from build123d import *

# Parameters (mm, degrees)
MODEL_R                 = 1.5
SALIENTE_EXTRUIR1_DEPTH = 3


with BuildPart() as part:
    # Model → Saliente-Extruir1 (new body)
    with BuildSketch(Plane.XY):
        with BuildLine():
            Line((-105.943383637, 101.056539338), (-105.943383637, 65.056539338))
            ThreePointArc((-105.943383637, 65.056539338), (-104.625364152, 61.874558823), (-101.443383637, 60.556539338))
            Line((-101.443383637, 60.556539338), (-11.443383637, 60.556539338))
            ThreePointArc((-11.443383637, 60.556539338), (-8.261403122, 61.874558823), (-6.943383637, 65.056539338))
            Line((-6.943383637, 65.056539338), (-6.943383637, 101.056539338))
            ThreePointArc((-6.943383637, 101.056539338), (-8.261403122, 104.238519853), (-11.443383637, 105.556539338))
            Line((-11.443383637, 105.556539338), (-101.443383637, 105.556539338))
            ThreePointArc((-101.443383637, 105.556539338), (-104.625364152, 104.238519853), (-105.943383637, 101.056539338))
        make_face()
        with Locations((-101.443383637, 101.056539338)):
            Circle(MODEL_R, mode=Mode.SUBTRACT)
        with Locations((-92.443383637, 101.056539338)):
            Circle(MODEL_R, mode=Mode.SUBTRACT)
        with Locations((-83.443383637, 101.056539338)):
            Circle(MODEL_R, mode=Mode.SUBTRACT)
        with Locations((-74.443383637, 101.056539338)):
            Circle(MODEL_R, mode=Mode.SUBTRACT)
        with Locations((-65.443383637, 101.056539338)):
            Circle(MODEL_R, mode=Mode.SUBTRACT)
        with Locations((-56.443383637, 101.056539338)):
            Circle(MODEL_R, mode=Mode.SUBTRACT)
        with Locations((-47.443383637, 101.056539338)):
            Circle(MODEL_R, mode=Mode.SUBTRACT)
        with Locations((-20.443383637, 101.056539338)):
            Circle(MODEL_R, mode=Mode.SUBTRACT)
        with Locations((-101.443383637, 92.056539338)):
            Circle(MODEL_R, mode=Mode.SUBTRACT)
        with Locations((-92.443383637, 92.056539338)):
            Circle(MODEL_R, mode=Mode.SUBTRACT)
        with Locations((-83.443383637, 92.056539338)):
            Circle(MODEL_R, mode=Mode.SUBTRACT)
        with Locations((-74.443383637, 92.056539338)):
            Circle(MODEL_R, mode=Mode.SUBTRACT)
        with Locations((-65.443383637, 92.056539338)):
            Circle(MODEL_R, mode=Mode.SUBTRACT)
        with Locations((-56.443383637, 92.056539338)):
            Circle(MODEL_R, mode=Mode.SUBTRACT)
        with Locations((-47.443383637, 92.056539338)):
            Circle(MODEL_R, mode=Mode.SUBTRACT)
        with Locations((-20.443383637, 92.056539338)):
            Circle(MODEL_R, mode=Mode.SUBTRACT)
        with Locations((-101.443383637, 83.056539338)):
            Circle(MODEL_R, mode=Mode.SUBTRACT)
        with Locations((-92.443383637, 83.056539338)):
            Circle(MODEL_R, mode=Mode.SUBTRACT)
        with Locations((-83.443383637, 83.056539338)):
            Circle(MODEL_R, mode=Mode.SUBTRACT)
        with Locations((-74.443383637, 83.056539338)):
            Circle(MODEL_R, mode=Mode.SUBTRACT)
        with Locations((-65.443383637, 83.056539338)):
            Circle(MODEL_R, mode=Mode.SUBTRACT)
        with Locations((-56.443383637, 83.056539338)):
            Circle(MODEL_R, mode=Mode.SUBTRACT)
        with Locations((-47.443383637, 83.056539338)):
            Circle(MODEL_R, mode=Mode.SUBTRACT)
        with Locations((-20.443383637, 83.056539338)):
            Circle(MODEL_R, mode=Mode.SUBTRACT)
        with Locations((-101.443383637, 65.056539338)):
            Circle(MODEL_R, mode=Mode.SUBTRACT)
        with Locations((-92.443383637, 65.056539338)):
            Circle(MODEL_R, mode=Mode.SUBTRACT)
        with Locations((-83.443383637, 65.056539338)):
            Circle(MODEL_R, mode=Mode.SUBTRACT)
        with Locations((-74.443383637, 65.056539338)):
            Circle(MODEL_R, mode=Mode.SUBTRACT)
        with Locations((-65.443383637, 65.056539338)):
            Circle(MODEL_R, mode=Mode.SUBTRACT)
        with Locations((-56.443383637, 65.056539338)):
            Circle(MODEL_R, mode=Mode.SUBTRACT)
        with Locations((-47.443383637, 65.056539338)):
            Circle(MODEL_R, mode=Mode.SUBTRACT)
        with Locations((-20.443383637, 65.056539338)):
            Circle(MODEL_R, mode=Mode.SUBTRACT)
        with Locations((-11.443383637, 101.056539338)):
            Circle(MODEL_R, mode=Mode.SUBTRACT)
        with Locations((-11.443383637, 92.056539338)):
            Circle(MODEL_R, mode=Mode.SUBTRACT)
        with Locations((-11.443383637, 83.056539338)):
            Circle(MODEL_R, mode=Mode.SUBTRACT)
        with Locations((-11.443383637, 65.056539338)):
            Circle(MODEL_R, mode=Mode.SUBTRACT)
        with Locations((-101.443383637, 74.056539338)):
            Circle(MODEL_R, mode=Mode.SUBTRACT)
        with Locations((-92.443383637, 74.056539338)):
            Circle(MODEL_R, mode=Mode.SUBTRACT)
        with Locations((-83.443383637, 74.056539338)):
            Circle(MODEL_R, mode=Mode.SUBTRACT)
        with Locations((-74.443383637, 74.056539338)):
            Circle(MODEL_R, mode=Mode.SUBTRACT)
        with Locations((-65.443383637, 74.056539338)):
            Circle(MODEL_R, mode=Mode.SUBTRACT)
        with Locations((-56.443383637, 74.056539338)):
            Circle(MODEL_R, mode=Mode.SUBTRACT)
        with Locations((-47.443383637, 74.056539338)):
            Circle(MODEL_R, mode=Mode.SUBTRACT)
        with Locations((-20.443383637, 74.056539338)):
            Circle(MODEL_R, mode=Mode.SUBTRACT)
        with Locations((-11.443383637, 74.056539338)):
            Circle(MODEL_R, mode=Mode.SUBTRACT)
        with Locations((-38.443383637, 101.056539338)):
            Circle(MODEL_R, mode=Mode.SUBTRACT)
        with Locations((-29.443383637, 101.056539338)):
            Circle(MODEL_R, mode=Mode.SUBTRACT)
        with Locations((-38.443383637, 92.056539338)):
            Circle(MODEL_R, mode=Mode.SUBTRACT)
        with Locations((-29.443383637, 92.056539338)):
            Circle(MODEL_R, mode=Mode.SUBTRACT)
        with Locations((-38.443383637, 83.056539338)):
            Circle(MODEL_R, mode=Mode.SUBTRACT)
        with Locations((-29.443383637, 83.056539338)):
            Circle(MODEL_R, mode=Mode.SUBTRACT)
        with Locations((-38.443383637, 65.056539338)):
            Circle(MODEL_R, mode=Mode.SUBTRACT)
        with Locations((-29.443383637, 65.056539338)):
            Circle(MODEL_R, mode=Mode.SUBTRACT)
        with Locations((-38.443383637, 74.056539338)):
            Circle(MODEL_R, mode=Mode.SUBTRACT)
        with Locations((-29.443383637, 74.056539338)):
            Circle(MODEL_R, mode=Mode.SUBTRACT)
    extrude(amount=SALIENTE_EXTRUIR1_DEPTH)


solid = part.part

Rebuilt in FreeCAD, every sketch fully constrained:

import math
import FreeCAD as App
import Part
import Sketcher

V = App.Vector

doc = App.newDocument("Part")
body = doc.addObject("PartDesign::Body", "Body")

# Sketch on XY plane
sketch1 = doc.addObject("Sketcher::SketchObject", "Sketch")
body.addObject(sketch1)
sketch1.AttachmentSupport = (doc.XY_Plane, [""])
sketch1.MapMode = "FlatFace"
sketch1.addGeometry(Part.LineSegment(V(-105.9, 101.1, 0), V(-105.9, 65.1, 0)), False)
sketch1.addGeometry(Part.ArcOfCircle(Part.Circle(V(-101.4, 65.1, 0), V(0, 0, 1), 4.5), math.radians(-180), math.radians(-90)), False)
sketch1.addGeometry(Part.LineSegment(V(-101.4, 60.6, 0), V(-11.4, 60.6, 0)), False)
sketch1.addGeometry(Part.ArcOfCircle(Part.Circle(V(-11.4, 65.1, 0), V(0, 0, 1), 4.5), math.radians(-90), math.radians(0)), False)
sketch1.addGeometry(Part.LineSegment(V(-6.9, 65.1, 0), V(-6.9, 101.1, 0)), False)
sketch1.addGeometry(Part.ArcOfCircle(Part.Circle(V(-11.4, 101.1, 0), V(0, 0, 1), 4.5), math.radians(0), math.radians(90)), False)
sketch1.addGeometry(Part.LineSegment(V(-11.4, 105.6, 0), V(-101.4, 105.6, 0)), False)
sketch1.addGeometry(Part.ArcOfCircle(Part.Circle(V(-101.4, 101.1, 0), V(0, 0, 1), 4.5), math.radians(90), math.radians(180)), False)
sketch1.addGeometry(Part.Circle(V(-101.4, 65.1, 0), V(0, 0, 1), 1.5), False)
sketch1.addGeometry(Part.Circle(V(-92.4, 65.1, 0), V(0, 0, 1), 1.5), False)
sketch1.addGeometry(Part.Circle(V(-83.4, 65.1, 0), V(0, 0, 1), 1.5), False)
sketch1.addGeometry(Part.Circle(V(-74.4, 65.1, 0), V(0, 0, 1), 1.5), False)
sketch1.addGeometry(Part.Circle(V(-65.4, 65.1, 0), V(0, 0, 1), 1.5), False)
sketch1.addGeometry(Part.Circle(V(-101.4, 74.1, 0), V(0, 0, 1), 1.5), False)
sketch1.addGeometry(Part.Circle(V(-92.4, 74.1, 0), V(0, 0, 1), 1.5), False)
sketch1.addGeometry(Part.Circle(V(-83.4, 74.1, 0), V(0, 0, 1), 1.5), False)
sketch1.addGeometry(Part.Circle(V(-74.4, 74.1, 0), V(0, 0, 1), 1.5), False)
sketch1.addGeometry(Part.Circle(V(-65.4, 74.1, 0), V(0, 0, 1), 1.5), False)
sketch1.addGeometry(Part.Circle(V(-56.4, 65.1, 0), V(0, 0, 1), 1.5), False)
sketch1.addGeometry(Part.Circle(V(-47.4, 65.1, 0), V(0, 0, 1), 1.5), False)
sketch1.addGeometry(Part.Circle(V(-38.4, 65.1, 0), V(0, 0, 1), 1.5), False)
sketch1.addGeometry(Part.Circle(V(-29.4, 65.1, 0), V(0, 0, 1), 1.5), False)
sketch1.addGeometry(Part.Circle(V(-20.4, 65.1, 0), V(0, 0, 1), 1.5), False)
sketch1.addGeometry(Part.Circle(V(-11.4, 65.1, 0), V(0, 0, 1), 1.5), False)
sketch1.addGeometry(Part.Circle(V(-56.4, 74.1, 0), V(0, 0, 1), 1.5), False)
sketch1.addGeometry(Part.Circle(V(-47.4, 74.1, 0), V(0, 0, 1), 1.5), False)
sketch1.addGeometry(Part.Circle(V(-38.4, 74.1, 0), V(0, 0, 1), 1.5), False)
sketch1.addGeometry(Part.Circle(V(-29.4, 74.1, 0), V(0, 0, 1), 1.5), False)
sketch1.addGeometry(Part.Circle(V(-20.4, 74.1, 0), V(0, 0, 1), 1.5), False)
sketch1.addGeometry(Part.Circle(V(-11.4, 74.1, 0), V(0, 0, 1), 1.5), False)
sketch1.addGeometry(Part.Circle(V(-101.4, 83.1, 0), V(0, 0, 1), 1.5), False)
sketch1.addGeometry(Part.Circle(V(-92.4, 83.1, 0), V(0, 0, 1), 1.5), False)
sketch1.addGeometry(Part.Circle(V(-83.4, 83.1, 0), V(0, 0, 1), 1.5), False)
sketch1.addGeometry(Part.Circle(V(-101.4, 92.1, 0), V(0, 0, 1), 1.5), False)
sketch1.addGeometry(Part.Circle(V(-92.4, 92.1, 0), V(0, 0, 1), 1.5), False)
sketch1.addGeometry(Part.Circle(V(-83.4, 92.1, 0), V(0, 0, 1), 1.5), False)
sketch1.addGeometry(Part.Circle(V(-74.4, 83.1, 0), V(0, 0, 1), 1.5), False)
sketch1.addGeometry(Part.Circle(V(-65.4, 83.1, 0), V(0, 0, 1), 1.5), False)
sketch1.addGeometry(Part.Circle(V(-74.4, 92.1, 0), V(0, 0, 1), 1.5), False)
sketch1.addGeometry(Part.Circle(V(-65.4, 92.1, 0), V(0, 0, 1), 1.5), False)
sketch1.addGeometry(Part.Circle(V(-101.4, 101.1, 0), V(0, 0, 1), 1.5), False)
sketch1.addGeometry(Part.Circle(V(-92.4, 101.1, 0), V(0, 0, 1), 1.5), False)
sketch1.addGeometry(Part.Circle(V(-83.4, 101.1, 0), V(0, 0, 1), 1.5), False)
sketch1.addGeometry(Part.Circle(V(-74.4, 101.1, 0), V(0, 0, 1), 1.5), False)
sketch1.addGeometry(Part.Circle(V(-65.4, 101.1, 0), V(0, 0, 1), 1.5), False)
sketch1.addGeometry(Part.Circle(V(-56.4, 83.1, 0), V(0, 0, 1), 1.5), False)
sketch1.addGeometry(Part.Circle(V(-47.4, 83.1, 0), V(0, 0, 1), 1.5), False)
sketch1.addGeometry(Part.Circle(V(-38.4, 83.1, 0), V(0, 0, 1), 1.5), False)
sketch1.addGeometry(Part.Circle(V(-56.4, 92.1, 0), V(0, 0, 1), 1.5), False)
sketch1.addGeometry(Part.Circle(V(-47.4, 92.1, 0), V(0, 0, 1), 1.5), False)
sketch1.addGeometry(Part.Circle(V(-38.4, 92.1, 0), V(0, 0, 1), 1.5), False)
sketch1.addGeometry(Part.Circle(V(-29.4, 83.1, 0), V(0, 0, 1), 1.5), False)
sketch1.addGeometry(Part.Circle(V(-20.4, 83.1, 0), V(0, 0, 1), 1.5), False)
sketch1.addGeometry(Part.Circle(V(-11.4, 83.1, 0), V(0, 0, 1), 1.5), False)
sketch1.addGeometry(Part.Circle(V(-29.4, 92.1, 0), V(0, 0, 1), 1.5), False)
sketch1.addGeometry(Part.Circle(V(-20.4, 92.1, 0), V(0, 0, 1), 1.5), False)
sketch1.addGeometry(Part.Circle(V(-11.4, 92.1, 0), V(0, 0, 1), 1.5), False)
sketch1.addGeometry(Part.Circle(V(-56.4, 101.1, 0), V(0, 0, 1), 1.5), False)
sketch1.addGeometry(Part.Circle(V(-47.4, 101.1, 0), V(0, 0, 1), 1.5), False)
sketch1.addGeometry(Part.Circle(V(-38.4, 101.1, 0), V(0, 0, 1), 1.5), False)
sketch1.addGeometry(Part.Circle(V(-29.4, 101.1, 0), V(0, 0, 1), 1.5), False)
sketch1.addGeometry(Part.Circle(V(-20.4, 101.1, 0), V(0, 0, 1), 1.5), False)
sketch1.addGeometry(Part.Circle(V(-11.4, 101.1, 0), V(0, 0, 1), 1.5), False)
sketch1.addConstraint(Sketcher.Constraint("Tangent", 0, 2, 1, 1))
sketch1.addConstraint(Sketcher.Constraint("Tangent", 1, 2, 2, 1))
sketch1.addConstraint(Sketcher.Constraint("Tangent", 2, 2, 3, 1))
sketch1.addConstraint(Sketcher.Constraint("Tangent", 3, 2, 4, 1))
sketch1.addConstraint(Sketcher.Constraint("Tangent", 4, 2, 5, 1))
sketch1.addConstraint(Sketcher.Constraint("Tangent", 5, 2, 6, 1))
sketch1.addConstraint(Sketcher.Constraint("Tangent", 6, 2, 7, 1))
sketch1.addConstraint(Sketcher.Constraint("Tangent", 7, 2, 0, 1))
sketch1.addConstraint(Sketcher.Constraint("Vertical", 0))
sketch1.addConstraint(Sketcher.Constraint("Horizontal", 2))
sketch1.addConstraint(Sketcher.Constraint("Vertical", 4))
sketch1.addConstraint(Sketcher.Constraint("Horizontal", 6))
sketch1.addConstraint(Sketcher.Constraint("Coincident", 8, 3, 1, 3))
sketch1.addConstraint(Sketcher.Constraint("Coincident", 23, 3, 3, 3))
sketch1.addConstraint(Sketcher.Constraint("Coincident", 40, 3, 7, 3))
sketch1.addConstraint(Sketcher.Constraint("Coincident", 62, 3, 5, 3))
sketch1.addConstraint(Sketcher.Constraint("Equal", 1, 3))
sketch1.addConstraint(Sketcher.Constraint("Equal", 3, 5))
sketch1.addConstraint(Sketcher.Constraint("Equal", 5, 7))
sketch1.addConstraint(Sketcher.Constraint("Equal", 8, 9))
sketch1.addConstraint(Sketcher.Constraint("Equal", 9, 10))
sketch1.addConstraint(Sketcher.Constraint("Equal", 10, 11))
sketch1.addConstraint(Sketcher.Constraint("Equal", 11, 12))
sketch1.addConstraint(Sketcher.Constraint("Equal", 12, 13))
sketch1.addConstraint(Sketcher.Constraint("Equal", 13, 14))
sketch1.addConstraint(Sketcher.Constraint("Equal", 14, 15))
sketch1.addConstraint(Sketcher.Constraint("Equal", 15, 16))
sketch1.addConstraint(Sketcher.Constraint("Equal", 16, 17))
sketch1.addConstraint(Sketcher.Constraint("Equal", 17, 18))
sketch1.addConstraint(Sketcher.Constraint("Equal", 18, 19))
sketch1.addConstraint(Sketcher.Constraint("Equal", 19, 20))
sketch1.addConstraint(Sketcher.Constraint("Equal", 20, 21))
sketch1.addConstraint(Sketcher.Constraint("Equal", 21, 22))
sketch1.addConstraint(Sketcher.Constraint("Equal", 22, 23))
sketch1.addConstraint(Sketcher.Constraint("Equal", 23, 24))
sketch1.addConstraint(Sketcher.Constraint("Equal", 24, 25))
sketch1.addConstraint(Sketcher.Constraint("Equal", 25, 26))
sketch1.addConstraint(Sketcher.Constraint("Equal", 26, 27))
sketch1.addConstraint(Sketcher.Constraint("Equal", 27, 28))
sketch1.addConstraint(Sketcher.Constraint("Equal", 28, 29))
sketch1.addConstraint(Sketcher.Constraint("Equal", 29, 30))
sketch1.addConstraint(Sketcher.Constraint("Equal", 30, 31))
sketch1.addConstraint(Sketcher.Constraint("Equal", 31, 32))
sketch1.addConstraint(Sketcher.Constraint("Equal", 32, 33))
sketch1.addConstraint(Sketcher.Constraint("Equal", 33, 34))
sketch1.addConstraint(Sketcher.Constraint("Equal", 34, 35))
sketch1.addConstraint(Sketcher.Constraint("Equal", 35, 36))
sketch1.addConstraint(Sketcher.Constraint("Equal", 36, 37))
sketch1.addConstraint(Sketcher.Constraint("Equal", 37, 38))
sketch1.addConstraint(Sketcher.Constraint("Equal", 38, 39))
sketch1.addConstraint(Sketcher.Constraint("Equal", 39, 40))
sketch1.addConstraint(Sketcher.Constraint("Equal", 40, 41))
sketch1.addConstraint(Sketcher.Constraint("Equal", 41, 42))
sketch1.addConstraint(Sketcher.Constraint("Equal", 42, 43))
sketch1.addConstraint(Sketcher.Constraint("Equal", 43, 44))
sketch1.addConstraint(Sketcher.Constraint("Equal", 44, 45))
sketch1.addConstraint(Sketcher.Constraint("Equal", 45, 46))
sketch1.addConstraint(Sketcher.Constraint("Equal", 46, 47))
sketch1.addConstraint(Sketcher.Constraint("Equal", 47, 48))
sketch1.addConstraint(Sketcher.Constraint("Equal", 48, 49))
sketch1.addConstraint(Sketcher.Constraint("Equal", 49, 50))
sketch1.addConstraint(Sketcher.Constraint("Equal", 50, 51))
sketch1.addConstraint(Sketcher.Constraint("Equal", 51, 52))
sketch1.addConstraint(Sketcher.Constraint("Equal", 52, 53))
sketch1.addConstraint(Sketcher.Constraint("Equal", 53, 54))
sketch1.addConstraint(Sketcher.Constraint("Equal", 54, 55))
sketch1.addConstraint(Sketcher.Constraint("Equal", 55, 56))
sketch1.addConstraint(Sketcher.Constraint("Equal", 56, 57))
sketch1.addConstraint(Sketcher.Constraint("Equal", 57, 58))
sketch1.addConstraint(Sketcher.Constraint("Equal", 58, 59))
sketch1.addConstraint(Sketcher.Constraint("Equal", 59, 60))
sketch1.addConstraint(Sketcher.Constraint("Equal", 60, 61))
sketch1.addConstraint(Sketcher.Constraint("Equal", 61, 62))
sketch1.addConstraint(Sketcher.Constraint("Horizontal", 8, 3, 9, 3))
sketch1.addConstraint(Sketcher.Constraint("Horizontal", 9, 3, 10, 3))
sketch1.addConstraint(Sketcher.Constraint("Horizontal", 10, 3, 11, 3))
sketch1.addConstraint(Sketcher.Constraint("Horizontal", 11, 3, 12, 3))
sketch1.addConstraint(Sketcher.Constraint("Horizontal", 13, 3, 14, 3))
sketch1.addConstraint(Sketcher.Constraint("Horizontal", 14, 3, 15, 3))
sketch1.addConstraint(Sketcher.Constraint("Horizontal", 15, 3, 16, 3))
sketch1.addConstraint(Sketcher.Constraint("Horizontal", 16, 3, 17, 3))
sketch1.addConstraint(Sketcher.Constraint("Horizontal", 12, 3, 18, 3))
sketch1.addConstraint(Sketcher.Constraint("Horizontal", 18, 3, 19, 3))
sketch1.addConstraint(Sketcher.Constraint("Horizontal", 19, 3, 20, 3))
sketch1.addConstraint(Sketcher.Constraint("Horizontal", 20, 3, 21, 3))
sketch1.addConstraint(Sketcher.Constraint("Horizontal", 21, 3, 22, 3))
sketch1.addConstraint(Sketcher.Constraint("Horizontal", 17, 3, 24, 3))
sketch1.addConstraint(Sketcher.Constraint("Horizontal", 24, 3, 25, 3))
sketch1.addConstraint(Sketcher.Constraint("Horizontal", 25, 3, 26, 3))
sketch1.addConstraint(Sketcher.Constraint("Horizontal", 26, 3, 27, 3))
sketch1.addConstraint(Sketcher.Constraint("Horizontal", 27, 3, 28, 3))
sketch1.addConstraint(Sketcher.Constraint("Horizontal", 28, 3, 29, 3))
sketch1.addConstraint(Sketcher.Constraint("Horizontal", 30, 3, 31, 3))
sketch1.addConstraint(Sketcher.Constraint("Horizontal", 31, 3, 32, 3))
sketch1.addConstraint(Sketcher.Constraint("Horizontal", 33, 3, 34, 3))
sketch1.addConstraint(Sketcher.Constraint("Horizontal", 34, 3, 35, 3))
sketch1.addConstraint(Sketcher.Constraint("Horizontal", 32, 3, 36, 3))
sketch1.addConstraint(Sketcher.Constraint("Horizontal", 36, 3, 37, 3))
sketch1.addConstraint(Sketcher.Constraint("Horizontal", 35, 3, 38, 3))
sketch1.addConstraint(Sketcher.Constraint("Horizontal", 38, 3, 39, 3))
sketch1.addConstraint(Sketcher.Constraint("Horizontal", 40, 3, 41, 3))
sketch1.addConstraint(Sketcher.Constraint("Horizontal", 41, 3, 42, 3))
sketch1.addConstraint(Sketcher.Constraint("Horizontal", 42, 3, 43, 3))
sketch1.addConstraint(Sketcher.Constraint("Horizontal", 43, 3, 44, 3))
sketch1.addConstraint(Sketcher.Constraint("Horizontal", 37, 3, 45, 3))
sketch1.addConstraint(Sketcher.Constraint("Horizontal", 45, 3, 46, 3))
sketch1.addConstraint(Sketcher.Constraint("Horizontal", 46, 3, 47, 3))
sketch1.addConstraint(Sketcher.Constraint("Horizontal", 39, 3, 48, 3))
sketch1.addConstraint(Sketcher.Constraint("Horizontal", 48, 3, 49, 3))
sketch1.addConstraint(Sketcher.Constraint("Horizontal", 49, 3, 50, 3))
sketch1.addConstraint(Sketcher.Constraint("Horizontal", 47, 3, 51, 3))
sketch1.addConstraint(Sketcher.Constraint("Horizontal", 51, 3, 52, 3))
sketch1.addConstraint(Sketcher.Constraint("Horizontal", 52, 3, 53, 3))
sketch1.addConstraint(Sketcher.Constraint("Horizontal", 50, 3, 54, 3))
sketch1.addConstraint(Sketcher.Constraint("Horizontal", 54, 3, 55, 3))
sketch1.addConstraint(Sketcher.Constraint("Horizontal", 55, 3, 56, 3))
sketch1.addConstraint(Sketcher.Constraint("Horizontal", 44, 3, 57, 3))
sketch1.addConstraint(Sketcher.Constraint("Horizontal", 57, 3, 58, 3))
sketch1.addConstraint(Sketcher.Constraint("Horizontal", 58, 3, 59, 3))
sketch1.addConstraint(Sketcher.Constraint("Horizontal", 59, 3, 60, 3))
sketch1.addConstraint(Sketcher.Constraint("Horizontal", 60, 3, 61, 3))
sketch1.addConstraint(Sketcher.Constraint("Vertical", 8, 3, 13, 3))
sketch1.addConstraint(Sketcher.Constraint("Vertical", 9, 3, 14, 3))
sketch1.addConstraint(Sketcher.Constraint("Vertical", 10, 3, 15, 3))
sketch1.addConstraint(Sketcher.Constraint("Vertical", 11, 3, 16, 3))
sketch1.addConstraint(Sketcher.Constraint("Vertical", 12, 3, 17, 3))
sketch1.addConstraint(Sketcher.Constraint("Vertical", 18, 3, 24, 3))
sketch1.addConstraint(Sketcher.Constraint("Vertical", 19, 3, 25, 3))
sketch1.addConstraint(Sketcher.Constraint("Vertical", 20, 3, 26, 3))
sketch1.addConstraint(Sketcher.Constraint("Vertical", 21, 3, 27, 3))
sketch1.addConstraint(Sketcher.Constraint("Vertical", 22, 3, 28, 3))
sketch1.addConstraint(Sketcher.Constraint("Vertical", 23, 3, 29, 3))
sketch1.addConstraint(Sketcher.Constraint("Vertical", 13, 3, 30, 3))
sketch1.addConstraint(Sketcher.Constraint("Vertical", 14, 3, 31, 3))
sketch1.addConstraint(Sketcher.Constraint("Vertical", 15, 3, 32, 3))
sketch1.addConstraint(Sketcher.Constraint("Vertical", 30, 3, 33, 3))
sketch1.addConstraint(Sketcher.Constraint("Vertical", 31, 3, 34, 3))
sketch1.addConstraint(Sketcher.Constraint("Vertical", 32, 3, 35, 3))
sketch1.addConstraint(Sketcher.Constraint("Vertical", 16, 3, 36, 3))
sketch1.addConstraint(Sketcher.Constraint("Vertical", 17, 3, 37, 3))
sketch1.addConstraint(Sketcher.Constraint("Vertical", 36, 3, 38, 3))
sketch1.addConstraint(Sketcher.Constraint("Vertical", 37, 3, 39, 3))
sketch1.addConstraint(Sketcher.Constraint("Vertical", 34, 3, 41, 3))
sketch1.addConstraint(Sketcher.Constraint("Vertical", 35, 3, 42, 3))
sketch1.addConstraint(Sketcher.Constraint("Vertical", 38, 3, 43, 3))
sketch1.addConstraint(Sketcher.Constraint("Vertical", 39, 3, 44, 3))
sketch1.addConstraint(Sketcher.Constraint("Vertical", 24, 3, 45, 3))
sketch1.addConstraint(Sketcher.Constraint("Vertical", 25, 3, 46, 3))
sketch1.addConstraint(Sketcher.Constraint("Vertical", 26, 3, 47, 3))
sketch1.addConstraint(Sketcher.Constraint("Vertical", 45, 3, 48, 3))
sketch1.addConstraint(Sketcher.Constraint("Vertical", 46, 3, 49, 3))
sketch1.addConstraint(Sketcher.Constraint("Vertical", 47, 3, 50, 3))
sketch1.addConstraint(Sketcher.Constraint("Vertical", 27, 3, 51, 3))
sketch1.addConstraint(Sketcher.Constraint("Vertical", 28, 3, 52, 3))
sketch1.addConstraint(Sketcher.Constraint("Vertical", 29, 3, 53, 3))
sketch1.addConstraint(Sketcher.Constraint("Vertical", 51, 3, 54, 3))
sketch1.addConstraint(Sketcher.Constraint("Vertical", 52, 3, 55, 3))
sketch1.addConstraint(Sketcher.Constraint("Vertical", 53, 3, 56, 3))
sketch1.addConstraint(Sketcher.Constraint("Vertical", 48, 3, 57, 3))
sketch1.addConstraint(Sketcher.Constraint("Vertical", 49, 3, 58, 3))
sketch1.addConstraint(Sketcher.Constraint("Vertical", 50, 3, 59, 3))
sketch1.addConstraint(Sketcher.Constraint("Vertical", 54, 3, 60, 3))
sketch1.addConstraint(Sketcher.Constraint("Vertical", 55, 3, 61, 3))
sketch1.addConstraint(Sketcher.Constraint("Diameter", 8, 3.0))
sketch1.addConstraint(Sketcher.Constraint("Radius", 1, 4.5))
sketch1.addConstraint(Sketcher.Constraint("DistanceX", 2, 1, 2, 2, 90.0))
sketch1.addConstraint(Sketcher.Constraint("DistanceY", 0, 2, 0, 1, 36.0))
sketch1.addConstraint(Sketcher.Constraint("DistanceY", -1, 1, 1, 3, 65.056539))
sketch1.addConstraint(Sketcher.Constraint("DistanceY", -1, 1, 13, 3, 74.056539))
sketch1.addConstraint(Sketcher.Constraint("DistanceY", -1, 1, 30, 3, 83.056539))
sketch1.addConstraint(Sketcher.Constraint("DistanceY", -1, 1, 33, 3, 92.056539))
sketch1.addConstraint(Sketcher.Constraint("DistanceX", 1, 3, -1, 1, 101.443384))
sketch1.addConstraint(Sketcher.Constraint("DistanceX", 9, 3, -1, 1, 92.443384))
sketch1.addConstraint(Sketcher.Constraint("DistanceX", 10, 3, -1, 1, 83.443384))
sketch1.addConstraint(Sketcher.Constraint("DistanceX", 11, 3, -1, 1, 74.443384))
sketch1.addConstraint(Sketcher.Constraint("DistanceX", 12, 3, -1, 1, 65.443384))
sketch1.addConstraint(Sketcher.Constraint("DistanceX", 18, 3, -1, 1, 56.443384))
sketch1.addConstraint(Sketcher.Constraint("DistanceX", 19, 3, -1, 1, 47.443384))
sketch1.addConstraint(Sketcher.Constraint("DistanceX", 20, 3, -1, 1, 38.443384))
sketch1.addConstraint(Sketcher.Constraint("DistanceX", 21, 3, -1, 1, 29.443384))
sketch1.addConstraint(Sketcher.Constraint("DistanceX", 22, 3, -1, 1, 20.443384))
pad1 = doc.addObject("PartDesign::Pad", "Pad")
body.addObject(pad1)
pad1.Profile = sketch1
pad1.Length = 3

doc.recompute()
